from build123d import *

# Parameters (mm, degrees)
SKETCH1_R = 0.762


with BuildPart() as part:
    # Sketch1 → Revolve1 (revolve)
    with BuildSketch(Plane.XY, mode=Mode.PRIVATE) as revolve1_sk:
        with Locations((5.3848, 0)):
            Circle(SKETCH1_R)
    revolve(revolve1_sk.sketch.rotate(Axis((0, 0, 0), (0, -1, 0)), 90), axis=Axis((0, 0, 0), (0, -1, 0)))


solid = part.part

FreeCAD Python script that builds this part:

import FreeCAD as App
import Part
import Sketcher

V = App.Vector
Q = App.Units.Quantity

doc = App.newDocument("Part")
body = doc.addObject("PartDesign::Body", "Body")

sketch1 = body.newObject("Sketcher::SketchObject", "Sketch")
sketch1.AttachmentSupport = (doc.getObject("XY_Plane"), [""])
sketch1.MapMode = "FlatFace"
sketch1.addGeometry(Part.Circle(V(5.4, 0, 0), V(0, 0, 1), 0.8), False)
sketch1.addConstraint(Sketcher.Constraint("PointOnObject", 0, 3, -1))
sketch1.addConstraint(Sketcher.Constraint("Diameter", 0, Q("0.06 in")))
sketch1.addConstraint(Sketcher.Constraint("DistanceX", -1, 1, 0, 3, Q("0.212 in")))
revolution = body.newObject("PartDesign::Revolution", "Revolution")
revolution.Profile = sketch1
revolution.ReferenceAxis = (sketch1, ["V_Axis"])
revolution.Angle = 360

doc.recompute()
